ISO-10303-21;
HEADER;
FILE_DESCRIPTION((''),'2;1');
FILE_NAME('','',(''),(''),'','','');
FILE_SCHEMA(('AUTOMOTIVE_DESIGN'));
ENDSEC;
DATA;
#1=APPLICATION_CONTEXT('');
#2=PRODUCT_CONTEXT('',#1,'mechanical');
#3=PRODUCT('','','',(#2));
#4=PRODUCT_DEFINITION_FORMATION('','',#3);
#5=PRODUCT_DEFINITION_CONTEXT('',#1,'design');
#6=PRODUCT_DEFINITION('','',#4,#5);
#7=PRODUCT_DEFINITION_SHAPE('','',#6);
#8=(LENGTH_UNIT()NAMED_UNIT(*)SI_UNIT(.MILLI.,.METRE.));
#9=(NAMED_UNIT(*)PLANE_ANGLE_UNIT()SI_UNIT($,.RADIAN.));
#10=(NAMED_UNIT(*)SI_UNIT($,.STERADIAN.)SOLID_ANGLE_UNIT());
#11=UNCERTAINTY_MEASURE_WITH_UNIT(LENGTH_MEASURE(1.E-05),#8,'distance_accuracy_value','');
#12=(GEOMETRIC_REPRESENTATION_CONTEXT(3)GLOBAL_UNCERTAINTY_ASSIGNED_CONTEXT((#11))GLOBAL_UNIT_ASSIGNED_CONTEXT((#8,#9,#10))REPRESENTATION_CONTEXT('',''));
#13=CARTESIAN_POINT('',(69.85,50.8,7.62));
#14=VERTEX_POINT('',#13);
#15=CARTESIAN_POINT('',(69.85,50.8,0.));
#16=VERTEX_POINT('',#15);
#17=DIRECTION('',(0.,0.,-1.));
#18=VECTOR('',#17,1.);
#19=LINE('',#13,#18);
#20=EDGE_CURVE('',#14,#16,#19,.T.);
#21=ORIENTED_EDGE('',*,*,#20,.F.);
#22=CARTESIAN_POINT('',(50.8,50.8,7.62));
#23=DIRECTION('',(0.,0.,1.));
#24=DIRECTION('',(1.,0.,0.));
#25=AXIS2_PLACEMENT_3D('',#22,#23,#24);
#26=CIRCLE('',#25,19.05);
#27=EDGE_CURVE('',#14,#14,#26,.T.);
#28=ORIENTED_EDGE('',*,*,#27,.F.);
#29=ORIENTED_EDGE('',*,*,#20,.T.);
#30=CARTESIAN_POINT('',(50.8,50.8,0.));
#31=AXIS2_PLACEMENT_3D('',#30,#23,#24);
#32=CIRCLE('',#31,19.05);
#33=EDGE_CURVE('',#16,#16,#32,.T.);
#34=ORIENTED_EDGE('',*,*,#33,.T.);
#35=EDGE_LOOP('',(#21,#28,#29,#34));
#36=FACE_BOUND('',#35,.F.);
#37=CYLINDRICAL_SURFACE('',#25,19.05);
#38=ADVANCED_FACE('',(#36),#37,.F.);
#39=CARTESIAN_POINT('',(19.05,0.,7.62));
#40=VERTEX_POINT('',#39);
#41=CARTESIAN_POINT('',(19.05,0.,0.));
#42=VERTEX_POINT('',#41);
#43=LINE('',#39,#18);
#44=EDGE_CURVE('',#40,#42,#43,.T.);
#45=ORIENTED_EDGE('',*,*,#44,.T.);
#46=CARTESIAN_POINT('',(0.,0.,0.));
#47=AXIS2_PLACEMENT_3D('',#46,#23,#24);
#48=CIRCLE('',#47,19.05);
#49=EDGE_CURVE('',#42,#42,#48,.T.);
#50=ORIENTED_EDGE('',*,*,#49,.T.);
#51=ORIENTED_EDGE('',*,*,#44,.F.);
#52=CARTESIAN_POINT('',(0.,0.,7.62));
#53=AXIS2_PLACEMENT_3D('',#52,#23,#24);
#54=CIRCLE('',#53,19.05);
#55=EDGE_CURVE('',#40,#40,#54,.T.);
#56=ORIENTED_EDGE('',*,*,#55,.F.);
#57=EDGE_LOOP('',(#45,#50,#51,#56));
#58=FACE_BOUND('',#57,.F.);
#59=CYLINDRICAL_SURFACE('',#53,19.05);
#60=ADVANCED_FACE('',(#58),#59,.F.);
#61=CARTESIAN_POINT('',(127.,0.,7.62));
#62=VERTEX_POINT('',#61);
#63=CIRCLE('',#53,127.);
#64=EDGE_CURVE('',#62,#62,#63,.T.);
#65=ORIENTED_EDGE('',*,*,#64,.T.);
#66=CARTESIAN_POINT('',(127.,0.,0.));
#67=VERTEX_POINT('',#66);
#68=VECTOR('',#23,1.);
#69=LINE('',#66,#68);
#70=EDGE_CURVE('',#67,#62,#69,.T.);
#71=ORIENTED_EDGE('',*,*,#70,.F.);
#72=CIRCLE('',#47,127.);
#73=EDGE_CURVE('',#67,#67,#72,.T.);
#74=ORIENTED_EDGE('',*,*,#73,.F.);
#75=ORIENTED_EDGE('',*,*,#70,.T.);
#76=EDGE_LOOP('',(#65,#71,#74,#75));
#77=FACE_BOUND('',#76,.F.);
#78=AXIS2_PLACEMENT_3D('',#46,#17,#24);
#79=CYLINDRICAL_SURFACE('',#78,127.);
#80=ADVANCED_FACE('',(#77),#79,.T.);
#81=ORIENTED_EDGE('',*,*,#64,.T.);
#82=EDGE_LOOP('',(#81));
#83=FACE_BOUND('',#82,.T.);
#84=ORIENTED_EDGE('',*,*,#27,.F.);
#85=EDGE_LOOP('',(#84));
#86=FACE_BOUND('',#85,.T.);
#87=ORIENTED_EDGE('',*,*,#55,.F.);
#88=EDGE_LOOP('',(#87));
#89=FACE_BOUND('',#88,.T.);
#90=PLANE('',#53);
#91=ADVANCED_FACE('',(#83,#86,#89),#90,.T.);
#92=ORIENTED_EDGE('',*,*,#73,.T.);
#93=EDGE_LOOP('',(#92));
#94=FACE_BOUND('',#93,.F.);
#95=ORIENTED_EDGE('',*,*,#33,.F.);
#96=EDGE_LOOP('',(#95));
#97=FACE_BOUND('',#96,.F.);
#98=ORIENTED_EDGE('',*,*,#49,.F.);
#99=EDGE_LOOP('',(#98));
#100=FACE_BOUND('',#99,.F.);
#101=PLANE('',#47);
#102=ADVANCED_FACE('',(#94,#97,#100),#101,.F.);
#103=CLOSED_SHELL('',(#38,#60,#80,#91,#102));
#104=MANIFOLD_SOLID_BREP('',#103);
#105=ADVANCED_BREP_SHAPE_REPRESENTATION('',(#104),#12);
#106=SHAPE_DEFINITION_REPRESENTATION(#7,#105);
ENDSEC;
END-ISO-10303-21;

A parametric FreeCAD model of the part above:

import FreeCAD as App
import Part
import Sketcher
from FreeCAD import Vector
Q = App.Units.Quantity

doc = App.newDocument("Part")
body = doc.addObject("PartDesign::Body", "Body")

# Sketch on XY plane
sketch1 = doc.addObject("Sketcher::SketchObject", "Sketch")
body.addObject(sketch1)
sketch1.AttachmentSupport = (doc.XY_Plane, [""])
sketch1.MapMode = "FlatFace"
sketch1.addGeometry(Part.Circle(Vector(0, 0, 0), Vector(0, 0, 1), 127), False)
sketch1.addConstraint(Sketcher.Constraint("Coincident", 0, 3, -1, 1))
sketch1.addConstraint(Sketcher.Constraint("Diameter", 0, Q("10 in")))
pad1 = doc.addObject("PartDesign::Pad", "Pad")
body.addObject(pad1)
pad1.Profile = sketch1
pad1.Length = Q("0.3 in")

# Sketch on XY plane
sketch2 = doc.addObject("Sketcher::SketchObject", "Sketch001")
body.addObject(sketch2)
sketch2.AttachmentSupport = (doc.XY_Plane, [""])
sketch2.MapMode = "FlatFace"
sketch2.AttachmentOffset = App.Placement(Vector(0, 0, 0.3 * 25.4), App.Rotation())
sketch2.addGeometry(Part.Circle(Vector(0, 0, 0), Vector(0, 0, 1), 19), False)
sketch2.addGeometry(Part.Circle(Vector(51, 51, 0), Vector(0, 0, 1), 19), False)
sketch2.addConstraint(Sketcher.Constraint("Coincident", 0, 3, -1, 1))
sketch2.addConstraint(Sketcher.Constraint("Equal", 0, 1))
sketch2.addConstraint(Sketcher.Constraint("Diameter", 0, Q("1.5 in")))
sketch2.addConstraint(Sketcher.Constraint("DistanceX", -1, 1, 1, 3, Q("2 in")))
sketch2.addConstraint(Sketcher.Constraint("DistanceY", -1, 1, 1, 3, Q("2 in")))
pocket1 = doc.addObject("PartDesign::Pocket", "Pocket")
body.addObject(pocket1)
pocket1.Profile = sketch2
pocket1.Length = Q("0.3 in")

doc.recompute()
